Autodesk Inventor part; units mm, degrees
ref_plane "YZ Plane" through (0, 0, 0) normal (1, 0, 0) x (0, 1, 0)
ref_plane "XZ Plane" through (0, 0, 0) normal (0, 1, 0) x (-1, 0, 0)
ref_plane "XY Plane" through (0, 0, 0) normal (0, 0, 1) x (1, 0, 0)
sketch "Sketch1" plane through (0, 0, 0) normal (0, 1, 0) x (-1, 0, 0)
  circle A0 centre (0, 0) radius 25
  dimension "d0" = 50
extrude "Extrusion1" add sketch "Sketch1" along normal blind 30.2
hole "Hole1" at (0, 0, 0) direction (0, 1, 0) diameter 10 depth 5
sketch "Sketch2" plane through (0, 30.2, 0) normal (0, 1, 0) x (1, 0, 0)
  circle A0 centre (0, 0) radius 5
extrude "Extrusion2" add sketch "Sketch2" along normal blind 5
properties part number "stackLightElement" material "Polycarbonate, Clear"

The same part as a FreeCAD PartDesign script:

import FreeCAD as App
import Part
import Sketcher

doc = App.newDocument("Part")
body = doc.addObject("PartDesign::Body", "Body")

sketch1 = body.newObject("Sketcher::SketchObject", "Sketch")
sketch1.AttachmentSupport = (doc.getObject("XZ_Plane"), [""])
sketch1.MapMode = "FlatFace"
sketch1.addGeometry(Part.Circle(App.Vector(0, 0, 0), App.Vector(0, 0, 1), 25), False)
sketch1.addConstraint(Sketcher.Constraint("Coincident", 0, 3, -1, 1))
sketch1.addConstraint(Sketcher.Constraint("Diameter", 0, 50.0))
pad1 = body.newObject("PartDesign::Pad", "Pad")
pad1.Profile = sketch1
pad1.Length = 30.2
pad1.Reversed = True

sketch2 = body.newObject("Sketcher::SketchObject", "Sketch001")
sketch2.AttachmentSupport = (doc.getObject("XZ_Plane"), [""])
sketch2.MapMode = "FlatFace"
sketch2.addGeometry(Part.Circle(App.Vector(0, 0, 0), App.Vector(0, 0, 1), 5), False)
sketch2.addConstraint(Sketcher.Constraint("Coincident", 0, 3, -1, 1))
sketch2.addConstraint(Sketcher.Constraint("Diameter", 0, 10.0))
doc.recompute()
hole = body.newObject("PartDesign::Hole", "Hole")
hole.Profile = sketch2
hole.ThreadType = "None"
hole.Diameter = 10
hole.DepthType = "Dimension"
hole.Depth = 5
hole.DrillPoint = "Flat"

sketch3 = body.newObject("Sketcher::SketchObject", "Sketch002")
sketch3.AttachmentSupport = (doc.getObject("XZ_Plane"), [""])
sketch3.MapMode = "FlatFace"
sketch3.AttachmentOffset = App.Placement(App.Vector(0, 0, -30.2), App.Rotation())
sketch3.addGeometry(Part.Circle(App.Vector(0, 0, 0), App.Vector(0, 0, 1), 5), False)
sketch3.addConstraint(Sketcher.Constraint("Coincident", 0, 3, -1, 1))
sketch3.addConstraint(Sketcher.Constraint("Diameter", 0, 10.0))
pad2 = body.newObject("PartDesign::Pad", "Pad001")
pad2.Profile = sketch3
pad2.Length = 5
pad2.Reversed = True

doc.recompute()
